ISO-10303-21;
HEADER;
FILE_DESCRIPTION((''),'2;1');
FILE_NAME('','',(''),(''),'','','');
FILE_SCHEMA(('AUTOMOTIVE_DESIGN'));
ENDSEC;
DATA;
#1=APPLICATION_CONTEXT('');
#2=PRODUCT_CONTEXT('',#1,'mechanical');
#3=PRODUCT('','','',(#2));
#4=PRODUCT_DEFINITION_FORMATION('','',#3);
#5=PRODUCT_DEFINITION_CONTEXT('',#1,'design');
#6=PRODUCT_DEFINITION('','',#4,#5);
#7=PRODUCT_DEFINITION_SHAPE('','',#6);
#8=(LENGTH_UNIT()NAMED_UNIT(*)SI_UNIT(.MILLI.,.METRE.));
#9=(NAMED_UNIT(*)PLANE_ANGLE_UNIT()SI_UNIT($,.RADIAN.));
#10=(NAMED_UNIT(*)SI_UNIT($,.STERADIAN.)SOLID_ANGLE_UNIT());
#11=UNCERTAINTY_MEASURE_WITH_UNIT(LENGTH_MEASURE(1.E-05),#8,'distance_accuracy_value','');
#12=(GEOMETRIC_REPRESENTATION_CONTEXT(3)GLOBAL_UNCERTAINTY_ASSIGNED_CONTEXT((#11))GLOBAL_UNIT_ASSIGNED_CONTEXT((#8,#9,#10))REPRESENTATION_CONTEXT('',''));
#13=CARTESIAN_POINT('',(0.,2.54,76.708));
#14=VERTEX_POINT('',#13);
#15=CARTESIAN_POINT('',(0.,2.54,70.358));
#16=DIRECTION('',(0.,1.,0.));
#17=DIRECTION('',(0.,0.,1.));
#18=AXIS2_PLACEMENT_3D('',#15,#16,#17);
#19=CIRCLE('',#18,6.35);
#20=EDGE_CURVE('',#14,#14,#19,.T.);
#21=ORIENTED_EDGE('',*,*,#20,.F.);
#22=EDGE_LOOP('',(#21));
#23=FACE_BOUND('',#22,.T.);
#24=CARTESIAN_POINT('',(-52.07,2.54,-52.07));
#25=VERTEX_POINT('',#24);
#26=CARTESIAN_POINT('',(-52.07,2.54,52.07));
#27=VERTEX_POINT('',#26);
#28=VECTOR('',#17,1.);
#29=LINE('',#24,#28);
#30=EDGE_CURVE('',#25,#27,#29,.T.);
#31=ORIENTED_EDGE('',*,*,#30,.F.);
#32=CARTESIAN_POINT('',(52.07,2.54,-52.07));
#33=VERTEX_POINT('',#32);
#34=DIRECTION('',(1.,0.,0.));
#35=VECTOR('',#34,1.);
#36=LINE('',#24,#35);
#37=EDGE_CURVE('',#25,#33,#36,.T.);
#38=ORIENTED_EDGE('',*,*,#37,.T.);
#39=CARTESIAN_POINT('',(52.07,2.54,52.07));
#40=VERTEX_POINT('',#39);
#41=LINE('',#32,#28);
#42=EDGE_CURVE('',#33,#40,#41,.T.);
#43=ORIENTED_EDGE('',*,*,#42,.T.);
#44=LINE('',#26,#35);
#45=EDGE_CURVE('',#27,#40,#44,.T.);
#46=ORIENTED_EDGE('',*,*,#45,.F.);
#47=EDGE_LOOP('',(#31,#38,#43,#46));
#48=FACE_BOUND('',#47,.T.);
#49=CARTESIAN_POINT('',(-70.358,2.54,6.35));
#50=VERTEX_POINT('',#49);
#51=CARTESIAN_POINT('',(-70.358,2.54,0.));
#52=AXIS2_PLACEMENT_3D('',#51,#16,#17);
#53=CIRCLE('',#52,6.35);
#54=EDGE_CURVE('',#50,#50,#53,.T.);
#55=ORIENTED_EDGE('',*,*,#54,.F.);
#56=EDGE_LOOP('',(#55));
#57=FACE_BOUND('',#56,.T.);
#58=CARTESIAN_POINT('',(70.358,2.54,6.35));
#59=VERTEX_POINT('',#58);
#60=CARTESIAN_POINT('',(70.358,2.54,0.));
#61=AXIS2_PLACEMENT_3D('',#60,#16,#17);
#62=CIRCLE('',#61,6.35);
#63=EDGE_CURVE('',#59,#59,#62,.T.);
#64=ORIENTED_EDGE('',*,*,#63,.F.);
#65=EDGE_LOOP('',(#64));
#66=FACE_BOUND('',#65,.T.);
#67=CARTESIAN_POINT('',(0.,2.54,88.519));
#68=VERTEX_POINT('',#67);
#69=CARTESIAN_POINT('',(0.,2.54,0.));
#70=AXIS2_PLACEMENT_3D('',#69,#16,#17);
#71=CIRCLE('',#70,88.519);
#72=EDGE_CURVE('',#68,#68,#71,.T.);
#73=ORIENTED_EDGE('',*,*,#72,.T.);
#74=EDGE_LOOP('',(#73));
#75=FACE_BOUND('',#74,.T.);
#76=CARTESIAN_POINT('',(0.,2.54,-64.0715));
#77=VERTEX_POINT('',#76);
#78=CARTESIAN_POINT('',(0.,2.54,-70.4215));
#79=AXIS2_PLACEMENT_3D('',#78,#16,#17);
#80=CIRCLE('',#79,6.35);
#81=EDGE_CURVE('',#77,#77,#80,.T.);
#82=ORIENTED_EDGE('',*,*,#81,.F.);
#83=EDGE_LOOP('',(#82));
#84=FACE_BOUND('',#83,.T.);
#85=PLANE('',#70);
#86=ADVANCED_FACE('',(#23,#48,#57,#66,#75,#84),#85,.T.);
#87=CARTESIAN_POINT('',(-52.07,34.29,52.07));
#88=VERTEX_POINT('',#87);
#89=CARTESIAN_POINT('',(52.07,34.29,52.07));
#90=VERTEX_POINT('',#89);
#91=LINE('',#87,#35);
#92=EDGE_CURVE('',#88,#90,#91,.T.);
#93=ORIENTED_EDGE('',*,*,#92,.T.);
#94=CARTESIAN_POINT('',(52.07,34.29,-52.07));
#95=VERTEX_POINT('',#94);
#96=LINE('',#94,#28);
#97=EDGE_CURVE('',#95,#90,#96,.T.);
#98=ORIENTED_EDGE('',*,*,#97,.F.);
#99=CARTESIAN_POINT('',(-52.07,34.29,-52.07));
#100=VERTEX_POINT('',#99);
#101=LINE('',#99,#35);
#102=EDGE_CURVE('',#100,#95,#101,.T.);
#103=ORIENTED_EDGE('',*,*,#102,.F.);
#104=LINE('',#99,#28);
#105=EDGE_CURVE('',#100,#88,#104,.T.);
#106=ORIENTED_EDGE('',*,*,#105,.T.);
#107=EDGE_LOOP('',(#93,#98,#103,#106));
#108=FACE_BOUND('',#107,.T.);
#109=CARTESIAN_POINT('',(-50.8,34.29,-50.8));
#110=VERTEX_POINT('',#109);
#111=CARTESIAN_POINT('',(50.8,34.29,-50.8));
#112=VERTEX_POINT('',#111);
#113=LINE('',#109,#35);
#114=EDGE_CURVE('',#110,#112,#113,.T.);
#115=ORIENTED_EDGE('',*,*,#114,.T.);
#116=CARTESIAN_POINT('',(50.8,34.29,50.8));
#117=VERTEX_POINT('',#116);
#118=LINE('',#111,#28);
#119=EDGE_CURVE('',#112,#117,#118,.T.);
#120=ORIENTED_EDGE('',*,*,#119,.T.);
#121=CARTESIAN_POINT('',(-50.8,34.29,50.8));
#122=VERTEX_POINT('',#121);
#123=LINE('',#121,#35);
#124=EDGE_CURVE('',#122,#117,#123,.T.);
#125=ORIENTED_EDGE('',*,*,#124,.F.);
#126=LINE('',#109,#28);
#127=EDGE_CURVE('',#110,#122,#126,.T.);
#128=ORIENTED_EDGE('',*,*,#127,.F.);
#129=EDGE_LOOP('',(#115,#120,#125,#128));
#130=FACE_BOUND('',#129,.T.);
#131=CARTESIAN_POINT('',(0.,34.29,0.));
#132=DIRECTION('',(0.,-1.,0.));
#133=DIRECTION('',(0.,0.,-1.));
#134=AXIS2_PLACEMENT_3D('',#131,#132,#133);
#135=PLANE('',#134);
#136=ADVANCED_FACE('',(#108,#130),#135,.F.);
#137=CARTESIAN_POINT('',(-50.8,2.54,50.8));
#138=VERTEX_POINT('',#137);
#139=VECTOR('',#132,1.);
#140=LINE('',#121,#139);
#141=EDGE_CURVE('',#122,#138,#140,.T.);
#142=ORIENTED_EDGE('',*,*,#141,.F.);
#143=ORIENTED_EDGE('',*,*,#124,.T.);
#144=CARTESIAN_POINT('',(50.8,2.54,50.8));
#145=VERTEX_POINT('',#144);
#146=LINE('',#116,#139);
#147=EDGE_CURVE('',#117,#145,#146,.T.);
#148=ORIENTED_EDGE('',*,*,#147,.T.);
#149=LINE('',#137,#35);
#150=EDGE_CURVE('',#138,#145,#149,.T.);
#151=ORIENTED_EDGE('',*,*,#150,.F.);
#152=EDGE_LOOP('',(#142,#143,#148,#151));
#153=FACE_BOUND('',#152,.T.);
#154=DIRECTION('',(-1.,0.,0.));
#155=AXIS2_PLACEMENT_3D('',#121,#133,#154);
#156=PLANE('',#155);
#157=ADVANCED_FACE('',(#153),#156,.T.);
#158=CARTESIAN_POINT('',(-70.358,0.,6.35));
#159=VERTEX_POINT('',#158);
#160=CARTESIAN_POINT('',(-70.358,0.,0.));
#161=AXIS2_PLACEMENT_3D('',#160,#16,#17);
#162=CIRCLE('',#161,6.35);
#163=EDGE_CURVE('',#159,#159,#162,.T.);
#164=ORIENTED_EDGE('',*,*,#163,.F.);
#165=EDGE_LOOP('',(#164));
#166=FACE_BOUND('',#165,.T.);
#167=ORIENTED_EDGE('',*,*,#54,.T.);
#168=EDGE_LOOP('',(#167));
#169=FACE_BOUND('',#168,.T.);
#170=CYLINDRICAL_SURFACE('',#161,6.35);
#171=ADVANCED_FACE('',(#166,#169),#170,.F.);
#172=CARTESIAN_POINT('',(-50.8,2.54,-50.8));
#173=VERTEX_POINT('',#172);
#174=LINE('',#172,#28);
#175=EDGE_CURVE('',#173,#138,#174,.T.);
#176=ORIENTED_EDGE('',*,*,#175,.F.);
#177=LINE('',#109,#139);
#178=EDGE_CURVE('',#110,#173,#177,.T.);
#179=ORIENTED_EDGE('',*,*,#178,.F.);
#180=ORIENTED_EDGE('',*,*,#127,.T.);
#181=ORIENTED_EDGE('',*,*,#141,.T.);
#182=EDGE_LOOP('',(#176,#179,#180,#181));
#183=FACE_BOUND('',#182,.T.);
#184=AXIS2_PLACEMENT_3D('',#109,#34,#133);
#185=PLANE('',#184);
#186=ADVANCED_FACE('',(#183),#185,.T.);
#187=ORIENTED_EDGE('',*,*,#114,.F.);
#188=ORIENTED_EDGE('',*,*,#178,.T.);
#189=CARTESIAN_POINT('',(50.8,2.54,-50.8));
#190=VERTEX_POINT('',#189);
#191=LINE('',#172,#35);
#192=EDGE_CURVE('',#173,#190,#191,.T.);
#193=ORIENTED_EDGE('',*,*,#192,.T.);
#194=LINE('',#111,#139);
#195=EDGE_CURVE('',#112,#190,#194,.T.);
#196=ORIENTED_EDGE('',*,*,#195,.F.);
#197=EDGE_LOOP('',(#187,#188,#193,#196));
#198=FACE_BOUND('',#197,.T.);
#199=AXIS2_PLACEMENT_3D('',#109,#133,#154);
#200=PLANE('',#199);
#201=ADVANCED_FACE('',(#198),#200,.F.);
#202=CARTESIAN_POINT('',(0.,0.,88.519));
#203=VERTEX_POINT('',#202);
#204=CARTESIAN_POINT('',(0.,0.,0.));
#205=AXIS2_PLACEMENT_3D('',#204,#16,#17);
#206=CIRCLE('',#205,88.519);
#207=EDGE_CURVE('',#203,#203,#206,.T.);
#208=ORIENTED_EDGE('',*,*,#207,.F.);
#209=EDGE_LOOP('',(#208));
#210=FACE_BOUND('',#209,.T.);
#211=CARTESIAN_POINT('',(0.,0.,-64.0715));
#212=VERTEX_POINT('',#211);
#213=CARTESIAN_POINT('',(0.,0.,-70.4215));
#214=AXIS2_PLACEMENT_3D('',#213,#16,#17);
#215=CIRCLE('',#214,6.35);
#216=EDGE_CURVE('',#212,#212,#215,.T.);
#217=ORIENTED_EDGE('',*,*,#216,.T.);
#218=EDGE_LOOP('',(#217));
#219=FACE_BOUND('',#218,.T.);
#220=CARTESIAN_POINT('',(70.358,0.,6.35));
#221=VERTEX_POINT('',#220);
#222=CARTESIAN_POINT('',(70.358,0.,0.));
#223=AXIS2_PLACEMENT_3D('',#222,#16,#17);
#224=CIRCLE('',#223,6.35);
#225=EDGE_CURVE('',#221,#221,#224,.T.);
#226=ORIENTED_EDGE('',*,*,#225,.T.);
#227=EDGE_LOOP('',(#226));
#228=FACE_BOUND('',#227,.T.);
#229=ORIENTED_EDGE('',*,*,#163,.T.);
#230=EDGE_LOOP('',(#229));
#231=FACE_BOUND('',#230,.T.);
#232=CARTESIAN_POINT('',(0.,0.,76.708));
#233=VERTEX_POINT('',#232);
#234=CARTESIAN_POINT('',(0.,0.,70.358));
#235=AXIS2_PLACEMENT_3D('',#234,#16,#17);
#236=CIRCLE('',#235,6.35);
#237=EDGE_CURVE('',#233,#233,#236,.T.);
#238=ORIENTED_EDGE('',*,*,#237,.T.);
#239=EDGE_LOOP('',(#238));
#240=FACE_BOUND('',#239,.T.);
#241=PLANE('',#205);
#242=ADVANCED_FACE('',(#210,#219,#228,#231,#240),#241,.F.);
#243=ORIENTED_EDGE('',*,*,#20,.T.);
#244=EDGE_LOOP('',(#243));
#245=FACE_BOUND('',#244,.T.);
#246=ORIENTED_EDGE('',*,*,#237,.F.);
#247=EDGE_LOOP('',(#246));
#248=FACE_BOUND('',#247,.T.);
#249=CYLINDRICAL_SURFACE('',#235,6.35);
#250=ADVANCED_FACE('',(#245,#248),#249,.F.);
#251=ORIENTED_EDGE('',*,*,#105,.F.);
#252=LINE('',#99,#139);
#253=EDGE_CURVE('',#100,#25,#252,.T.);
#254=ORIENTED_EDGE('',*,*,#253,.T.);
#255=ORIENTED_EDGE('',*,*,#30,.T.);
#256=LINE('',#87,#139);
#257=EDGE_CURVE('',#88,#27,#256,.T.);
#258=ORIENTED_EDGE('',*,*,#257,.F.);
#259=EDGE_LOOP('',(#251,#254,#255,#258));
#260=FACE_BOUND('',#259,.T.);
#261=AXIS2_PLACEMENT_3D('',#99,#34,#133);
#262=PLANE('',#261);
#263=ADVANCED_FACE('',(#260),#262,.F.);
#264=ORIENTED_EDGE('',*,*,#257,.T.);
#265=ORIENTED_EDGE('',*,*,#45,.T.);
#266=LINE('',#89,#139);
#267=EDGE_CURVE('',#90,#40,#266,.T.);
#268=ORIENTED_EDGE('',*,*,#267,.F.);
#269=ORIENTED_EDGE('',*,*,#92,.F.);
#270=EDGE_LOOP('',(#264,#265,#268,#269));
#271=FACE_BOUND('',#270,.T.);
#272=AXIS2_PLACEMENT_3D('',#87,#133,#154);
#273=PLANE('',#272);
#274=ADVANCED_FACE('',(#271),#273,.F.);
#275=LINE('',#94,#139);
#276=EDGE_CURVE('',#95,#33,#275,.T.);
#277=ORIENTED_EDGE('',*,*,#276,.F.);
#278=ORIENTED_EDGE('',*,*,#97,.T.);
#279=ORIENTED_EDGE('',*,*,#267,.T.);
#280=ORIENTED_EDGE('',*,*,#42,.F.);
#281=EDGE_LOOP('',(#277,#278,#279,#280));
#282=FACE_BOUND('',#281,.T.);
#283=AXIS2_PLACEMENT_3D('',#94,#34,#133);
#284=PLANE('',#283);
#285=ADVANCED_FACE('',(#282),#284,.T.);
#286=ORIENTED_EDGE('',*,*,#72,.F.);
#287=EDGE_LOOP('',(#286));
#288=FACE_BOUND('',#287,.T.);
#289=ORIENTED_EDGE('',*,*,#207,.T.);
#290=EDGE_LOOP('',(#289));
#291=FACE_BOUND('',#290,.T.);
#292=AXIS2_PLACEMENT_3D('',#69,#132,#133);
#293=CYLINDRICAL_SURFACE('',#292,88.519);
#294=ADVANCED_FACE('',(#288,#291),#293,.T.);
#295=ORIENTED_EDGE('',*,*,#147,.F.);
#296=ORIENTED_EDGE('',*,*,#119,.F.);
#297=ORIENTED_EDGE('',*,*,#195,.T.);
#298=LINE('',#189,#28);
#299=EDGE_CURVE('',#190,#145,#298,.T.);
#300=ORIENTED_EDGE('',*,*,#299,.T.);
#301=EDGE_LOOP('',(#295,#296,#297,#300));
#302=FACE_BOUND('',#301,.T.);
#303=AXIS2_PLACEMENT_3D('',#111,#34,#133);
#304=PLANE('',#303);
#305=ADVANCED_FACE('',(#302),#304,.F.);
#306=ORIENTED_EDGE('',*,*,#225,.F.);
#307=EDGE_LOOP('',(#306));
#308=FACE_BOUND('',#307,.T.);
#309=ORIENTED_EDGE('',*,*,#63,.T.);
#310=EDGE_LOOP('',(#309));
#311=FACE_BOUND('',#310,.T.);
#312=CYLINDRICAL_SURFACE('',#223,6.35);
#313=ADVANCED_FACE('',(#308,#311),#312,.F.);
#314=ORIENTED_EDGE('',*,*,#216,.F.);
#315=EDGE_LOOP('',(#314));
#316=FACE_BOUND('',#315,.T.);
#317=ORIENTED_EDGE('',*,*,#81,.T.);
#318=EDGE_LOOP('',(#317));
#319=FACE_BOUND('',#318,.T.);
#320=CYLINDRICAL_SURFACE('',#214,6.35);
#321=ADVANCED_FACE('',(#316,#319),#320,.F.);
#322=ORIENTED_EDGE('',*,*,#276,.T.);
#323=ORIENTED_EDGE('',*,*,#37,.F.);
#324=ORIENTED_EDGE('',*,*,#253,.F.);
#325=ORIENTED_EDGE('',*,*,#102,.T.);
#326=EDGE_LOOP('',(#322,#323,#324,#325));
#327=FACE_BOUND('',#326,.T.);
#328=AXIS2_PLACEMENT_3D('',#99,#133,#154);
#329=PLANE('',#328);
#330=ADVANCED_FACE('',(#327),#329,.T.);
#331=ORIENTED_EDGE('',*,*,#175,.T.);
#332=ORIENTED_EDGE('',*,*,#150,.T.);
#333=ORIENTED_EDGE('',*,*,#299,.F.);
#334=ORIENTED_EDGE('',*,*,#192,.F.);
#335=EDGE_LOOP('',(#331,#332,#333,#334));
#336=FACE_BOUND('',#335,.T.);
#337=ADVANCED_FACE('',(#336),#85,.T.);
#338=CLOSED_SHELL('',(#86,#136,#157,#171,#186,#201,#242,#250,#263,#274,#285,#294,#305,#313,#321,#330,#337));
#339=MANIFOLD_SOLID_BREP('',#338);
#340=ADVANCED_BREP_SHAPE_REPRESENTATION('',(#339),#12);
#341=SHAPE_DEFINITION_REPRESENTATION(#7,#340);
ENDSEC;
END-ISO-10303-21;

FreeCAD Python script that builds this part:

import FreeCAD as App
import Part
import Sketcher

V = App.Vector
Q = App.Units.Quantity

doc = App.newDocument("Part")
params = doc.addObject("Spreadsheet::Sheet", "Params")
for row, (alias, value) in enumerate([
    ("sketch1_diameter", "6.97 in"),
    ("pad1_length", "0.1 in"),
    ("sketch2_width", "4 in"),
    ("sketch2_width2", "4.1 in"),
    ("pad2_length", "1.25 in"),
    ("sketch3_diameter", "0.5 in"),
], start=1):
    params.set(f"A{row}", alias)
    params.set(f"B{row}", "=" + value)
    params.setAlias(f"B{row}", alias)

body = doc.addObject("PartDesign::Body", "Body")

# Sketch on XZ plane
sketch1 = body.newObject("Sketcher::SketchObject", "Sketch")
sketch1.AttachmentSupport = (doc.getObject("XZ_Plane"), [""])
sketch1.MapMode = "FlatFace"
sketch1.addGeometry(Part.Circle(V(0, 0, 0), V(0, 0, 1), 88.519), False)
sketch1.addConstraint(Sketcher.Constraint("Coincident", 0, 3, -1, 1))
sketch1.addConstraint(Sketcher.Constraint("Diameter", 0, Q("6.97 in")))
sketch1.setExpression("Constraints[1]", "Params.sketch1_diameter")
pad1 = body.newObject("PartDesign::Pad", "Pad")
pad1.Profile = sketch1
pad1.setExpression("Length", "Params.pad1_length")
pad1.Reversed = True

# Sketch on XZ plane
sketch2 = body.newObject("Sketcher::SketchObject", "Sketch001")
sketch2.AttachmentSupport = (doc.getObject("XZ_Plane"), [""])
sketch2.MapMode = "FlatFace"
sketch2.AttachmentOffset = App.Placement(V(0, 0, -0.1 * 25.4), App.Rotation())
sketch2.addGeometry(Part.LineSegment(V(-52.07, -52.07, 0), V(-52.07, 52.07, 0)), False)
sketch2.addGeometry(Part.LineSegment(V(-52.07, 52.07, 0), V(52.07, 52.07, 0)), False)
sketch2.addGeometry(Part.LineSegment(V(52.07, 52.07, 0), V(52.07, -52.07, 0)), False)
sketch2.addGeometry(Part.LineSegment(V(52.07, -52.07, 0), V(-52.07, -52.07, 0)), False)
sketch2.addGeometry(Part.LineSegment(V(50.8, 50.8, 0), V(-50.8, 50.8, 0)), False)
sketch2.addGeometry(Part.LineSegment(V(-50.8, 50.8, 0), V(-50.8, -50.8, 0)), False)
sketch2.addGeometry(Part.LineSegment(V(-50.8, -50.8, 0), V(50.8, -50.8, 0)), False)
sketch2.addGeometry(Part.LineSegment(V(50.8, -50.8, 0), V(50.8, 50.8, 0)), False)
sketch2.addConstraint(Sketcher.Constraint("Coincident", 0, 2, 1, 1))
sketch2.addConstraint(Sketcher.Constraint("Coincident", 1, 2, 2, 1))
sketch2.addConstraint(Sketcher.Constraint("Coincident", 2, 2, 3, 1))
sketch2.addConstraint(Sketcher.Constraint("Coincident", 3, 2, 0, 1))
sketch2.addConstraint(Sketcher.Constraint("Coincident", 4, 2, 5, 1))
sketch2.addConstraint(Sketcher.Constraint("Coincident", 5, 2, 6, 1))
sketch2.addConstraint(Sketcher.Constraint("Coincident", 6, 2, 7, 1))
sketch2.addConstraint(Sketcher.Constraint("Coincident", 7, 2, 4, 1))
sketch2.addConstraint(Sketcher.Constraint("Vertical", 0))
sketch2.addConstraint(Sketcher.Constraint("Horizontal", 1))
sketch2.addConstraint(Sketcher.Constraint("Vertical", 2))
sketch2.addConstraint(Sketcher.Constraint("Horizontal", 3))
sketch2.addConstraint(Sketcher.Constraint("Horizontal", 4))
sketch2.addConstraint(Sketcher.Constraint("Vertical", 5))
sketch2.addConstraint(Sketcher.Constraint("Horizontal", 6))
sketch2.addConstraint(Sketcher.Constraint("Vertical", 7))
sketch2.addConstraint(Sketcher.Constraint("Symmetric", 0, 2, 2, 2, -1, 1))
sketch2.addConstraint(Sketcher.Constraint("Symmetric", 4, 2, 6, 2, -1, 1))
sketch2.addConstraint(Sketcher.Constraint("Equal", 3, 0))
sketch2.addConstraint(Sketcher.Constraint("Equal", 6, 5))
sketch2.addConstraint(Sketcher.Constraint("DistanceX", 4, 2, 4, 1, Q("4 in")))
sketch2.addConstraint(Sketcher.Constraint("DistanceX", 1, 1, 1, 2, Q("4.1 in")))
sketch2.setExpression("Constraints[20]", "Params.sketch2_width")
sketch2.setExpression("Constraints[21]", "Params.sketch2_width2")
pad2 = body.newObject("PartDesign::Pad", "Pad001")
pad2.Profile = sketch2
pad2.setExpression("Length", "Params.pad2_length")
pad2.Reversed = True

# Sketch on XZ plane
sketch3 = body.newObject("Sketcher::SketchObject", "Sketch002")
sketch3.AttachmentSupport = (doc.getObject("XZ_Plane"), [""])
sketch3.MapMode = "FlatFace"
sketch3.AttachmentOffset = App.Placement(V(0, 0, -0.1 * 25.4), App.Rotation())
sketch3.addGeometry(Part.Circle(V(0, -70.4215, 0), V(0, 0, 1), 6.35), False)
sketch3.addGeometry(Part.Circle(V(0, 70.358, 0), V(0, 0, 1), 6.35), False)
sketch3.addGeometry(Part.Circle(V(70.358, 0, 0), V(0, 0, 1), 6.35), False)
sketch3.addGeometry(Part.Circle(V(-70.358, 0, 0), V(0, 0, 1), 6.35), False)
sketch3.addConstraint(Sketcher.Constraint("Equal", 0, 1))
sketch3.addConstraint(Sketcher.Constraint("Equal", 1, 2))
sketch3.addConstraint(Sketcher.Constraint("Equal", 2, 3))
sketch3.addConstraint(Sketcher.Constraint("Symmetric", 2, 3, 3, 3, -1, 1))
sketch3.addConstraint(Sketcher.Constraint("PointOnObject", 0, 3, -2))
sketch3.addConstraint(Sketcher.Constraint("PointOnObject", 1, 3, -2))
sketch3.addConstraint(Sketcher.Constraint("PointOnObject", 2, 3, -1))
sketch3.addConstraint(Sketcher.Constraint("Diameter", 0, Q("0.5 in")))
sketch3.addConstraint(Sketcher.Constraint("DistanceY", -1, 1, 1, 3, Q("2.77 in")))
sketch3.addConstraint(Sketcher.Constraint("DistanceX", -1, 1, 2, 3, Q("2.77 in")))
sketch3.addConstraint(Sketcher.Constraint("DistanceY", 0, 3, -1, 1, Q("2.7725 in")))
sketch3.setExpression("Constraints[7]", "Params.sketch3_diameter")
pocket1 = body.newObject("PartDesign::Pocket", "Pocket")
pocket1.Profile = sketch3
pocket1.Type = "ThroughAll"
pocket1.Reversed = True

doc.recompute()
